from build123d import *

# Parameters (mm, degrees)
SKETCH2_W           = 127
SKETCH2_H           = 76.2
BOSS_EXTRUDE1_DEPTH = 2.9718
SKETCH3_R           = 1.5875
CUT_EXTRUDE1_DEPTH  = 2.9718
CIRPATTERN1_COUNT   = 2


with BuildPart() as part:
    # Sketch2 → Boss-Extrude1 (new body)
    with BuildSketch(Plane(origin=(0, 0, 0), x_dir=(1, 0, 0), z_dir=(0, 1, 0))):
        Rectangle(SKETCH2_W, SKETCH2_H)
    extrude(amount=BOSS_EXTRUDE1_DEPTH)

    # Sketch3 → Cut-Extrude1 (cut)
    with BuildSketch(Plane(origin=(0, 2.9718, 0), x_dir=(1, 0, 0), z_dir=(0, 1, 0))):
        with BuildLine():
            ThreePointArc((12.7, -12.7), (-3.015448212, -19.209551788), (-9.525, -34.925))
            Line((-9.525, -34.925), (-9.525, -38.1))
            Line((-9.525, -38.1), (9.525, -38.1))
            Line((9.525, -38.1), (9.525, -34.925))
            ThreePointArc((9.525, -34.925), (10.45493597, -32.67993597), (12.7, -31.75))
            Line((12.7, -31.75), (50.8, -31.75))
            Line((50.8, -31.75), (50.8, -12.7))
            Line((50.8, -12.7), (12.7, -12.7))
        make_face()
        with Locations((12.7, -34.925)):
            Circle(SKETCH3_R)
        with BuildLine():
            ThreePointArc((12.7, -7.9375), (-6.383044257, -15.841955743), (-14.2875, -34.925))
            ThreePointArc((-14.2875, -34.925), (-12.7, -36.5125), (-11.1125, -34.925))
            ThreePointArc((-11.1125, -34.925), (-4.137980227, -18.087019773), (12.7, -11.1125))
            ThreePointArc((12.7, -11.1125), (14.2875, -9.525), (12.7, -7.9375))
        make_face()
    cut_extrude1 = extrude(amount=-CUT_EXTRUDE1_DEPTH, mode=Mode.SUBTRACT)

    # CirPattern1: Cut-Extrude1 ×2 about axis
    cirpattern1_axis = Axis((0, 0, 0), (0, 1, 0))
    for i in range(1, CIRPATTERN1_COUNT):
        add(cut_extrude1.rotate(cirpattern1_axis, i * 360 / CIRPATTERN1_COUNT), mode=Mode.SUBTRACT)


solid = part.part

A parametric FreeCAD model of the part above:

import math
import FreeCAD as App
import Part
import Sketcher

V = App.Vector
Q = App.Units.Quantity


def add_polygon(sketch, points):
    """Adds a closed chain of lines whose ends are joined by coincident constraints."""
    first, n = sketch.GeometryCount, len(points)
    for a, b in zip(points, points[1:] + points[:1]):
        sketch.addGeometry(Part.LineSegment(App.Vector(*a, 0), App.Vector(*b, 0)), False)
    for i in range(n):
        sketch.addConstraint(Sketcher.Constraint("Coincident", first + i, 2, first + (i + 1) % n, 1))

doc = App.newDocument("Part")
params = doc.addObject("Spreadsheet::Sheet", "Params")
for row, (alias, value) in enumerate([
    ("sketch1_width", "5 in"),
    ("sketch1_height", "3 in"),
    ("pad1_length", "0.117 in"),
    ("sketch2_diameter", "0.125 in"),
    ("sketch2_width", "1.5 in"),
    ("sketch2_radius", "0.875 in"),
    ("sketch2_radius2", "0.125 in"),
    ("pocket1_length", "0.117 in"),
], start=1):
    params.set(f"A{row}", alias)
    params.set(f"B{row}", "=" + value)
    params.setAlias(f"B{row}", alias)

body = doc.addObject("PartDesign::Body", "Body")

sketch1 = body.newObject("Sketcher::SketchObject", "Sketch")
sketch1.AttachmentSupport = (doc.getObject("XZ_Plane"), [""])
sketch1.MapMode = "FlatFace"
add_polygon(sketch1, [(-63.5, -38.1), (-63.5, 38.1), (63.5, 38.1), (63.5, -38.1)])
sketch1.addConstraint([
    Sketcher.Constraint("Vertical", 0),
    Sketcher.Constraint("Horizontal", 1),
    Sketcher.Constraint("Vertical", 2),
    Sketcher.Constraint("Horizontal", 3),
    Sketcher.Constraint("Symmetric", 0, 2, 2, 2, -1, 1),
    Sketcher.Constraint("DistanceX", 1, 1, 1, 2, Q("5 in")),
    Sketcher.Constraint("DistanceY", 0, 1, 0, 2, Q("3 in")),
])
sketch1.setExpression("Constraints[9]", "Params.sketch1_width")
sketch1.setExpression("Constraints[10]", "Params.sketch1_height")
pad1 = body.newObject("PartDesign::Pad", "Pad")
pad1.Profile = sketch1
pad1.setExpression("Length", "Params.pad1_length")
pad1.Reversed = True

sketch2 = body.newObject("Sketcher::SketchObject", "Sketch001")
sketch2.AttachmentSupport = (doc.getObject("XZ_Plane"), [""])
sketch2.MapMode = "FlatFace"
sketch2.AttachmentOffset = App.Placement(V(0, 0, -0.117 * 25.4), App.Rotation())
sketch2.addGeometry([
    Part.ArcOfCircle(Part.Circle(V(12.7, 34.925, 0), V(0, 0, 1), 22.225), math.radians(180), math.radians(270)),
    Part.LineSegment(V(-9.525, 34.925, 0), V(-9.525, 38.1, 0)),
    Part.LineSegment(V(-9.525, 38.1, 0), V(9.525, 38.1, 0)),
    Part.LineSegment(V(9.525, 38.1, 0), V(9.525, 34.925, 0)),
    Part.ArcOfCircle(Part.Circle(V(12.7, 34.925, 0), V(0, 0, 1), 3.175), math.radians(-180), math.radians(-90)),
    Part.LineSegment(V(12.7, 31.75, 0), V(50.8, 31.75, 0)),
    Part.LineSegment(V(50.8, 31.75, 0), V(50.8, 12.7, 0)),
    Part.LineSegment(V(50.8, 12.7, 0), V(12.7, 12.7, 0)),
    Part.Circle(V(12.7, 34.925, 0), V(0, 0, 1), 1.5875),
    Part.ArcOfCircle(Part.Circle(V(12.7, 34.925, 0), V(0, 0, 1), 26.9875), math.radians(-180), math.radians(-90)),
    Part.ArcOfCircle(Part.Circle(V(-12.7, 34.925, 0), V(0, 0, 1), 1.5875), math.radians(0), math.radians(180)),
    Part.ArcOfCircle(Part.Circle(V(12.7, 34.925, 0), V(0, 0, 1), 23.8125), math.radians(180), math.radians(270)),
    Part.ArcOfCircle(Part.Circle(V(12.7, 9.525, 0), V(0, 0, 1), 1.5875), math.radians(-90), math.radians(90)),
], False)
sketch2.addConstraint([
    Sketcher.Constraint("Tangent", 0, 1, 1, 1),
    Sketcher.Constraint("Coincident", 1, 2, 2, 1),
    Sketcher.Constraint("Coincident", 2, 2, 3, 1),
    Sketcher.Constraint("Tangent", 3, 2, 4, 1),
    Sketcher.Constraint("Tangent", 4, 2, 5, 1),
    Sketcher.Constraint("Coincident", 5, 2, 6, 1),
    Sketcher.Constraint("Coincident", 6, 2, 7, 1),
    Sketcher.Constraint("Tangent", 7, 2, 0, 2),
    Sketcher.Constraint("Tangent", 9, 1, 10, 2),
    Sketcher.Constraint("Tangent", 10, 1, 11, 1),
    Sketcher.Constraint("Tangent", 11, 2, 12, 2),
    Sketcher.Constraint("Tangent", 12, 1, 9, 2),
    Sketcher.Constraint("Vertical", 1),
    Sketcher.Constraint("Horizontal", 2),
    Sketcher.Constraint("Vertical", 3),
    Sketcher.Constraint("Horizontal", 5),
    Sketcher.Constraint("Vertical", 6),
    Sketcher.Constraint("Horizontal", 7),
    Sketcher.Constraint("Coincident", 4, 3, 0, 3),
    Sketcher.Constraint("Coincident", 8, 3, 0, 3),
    Sketcher.Constraint("Coincident", 9, 3, 0, 3),
    Sketcher.Constraint("Coincident", 11, 3, 0, 3),
    Sketcher.Constraint("Equal", 8, 10),
    Sketcher.Constraint("Symmetric", 0, 3, 10, 3, -2),
    Sketcher.Constraint("Vertical", 11, 3, 12, 3),
    Sketcher.Constraint("Diameter", 8, Q("0.125 in")),
    Sketcher.Constraint("DistanceX", 5, 1, 5, 2, Q("1.5 in")),
    Sketcher.Constraint("DistanceX", -1, 1, 5, 2, Q("2 in")),
    Sketcher.Constraint("Radius", 0, Q("0.875 in")),
    Sketcher.Constraint("Radius", 4, Q("0.125 in")),
    Sketcher.Constraint("DistanceY", -1, 1, 1, 2, Q("1.5 in")),
    Sketcher.Constraint("DistanceY", -1, 1, 6, 2, Q("0.5 in")),
])
sketch2.setExpression("Constraints[25]", "Params.sketch2_diameter")
sketch2.setExpression("Constraints[26]", "Params.sketch2_width")
sketch2.setExpression("Constraints[28]", "Params.sketch2_radius")
sketch2.setExpression("Constraints[29]", "Params.sketch2_radius2")
pocket1 = body.newObject("PartDesign::Pocket", "Pocket")
pocket1.Profile = sketch2
pocket1.setExpression("Length", "Params.pocket1_length")
pocket1.Reversed = True
doc.recompute()

polarpattern = body.newObject("PartDesign::PolarPattern", "PolarPattern")
polarpattern.Originals = [pocket1]
polarpattern.Axis = (doc.getObject("Y_Axis"), [""])
polarpattern.Angle = 360
polarpattern.Occurrences = 2
body.Tip = polarpattern

doc.recompute()
